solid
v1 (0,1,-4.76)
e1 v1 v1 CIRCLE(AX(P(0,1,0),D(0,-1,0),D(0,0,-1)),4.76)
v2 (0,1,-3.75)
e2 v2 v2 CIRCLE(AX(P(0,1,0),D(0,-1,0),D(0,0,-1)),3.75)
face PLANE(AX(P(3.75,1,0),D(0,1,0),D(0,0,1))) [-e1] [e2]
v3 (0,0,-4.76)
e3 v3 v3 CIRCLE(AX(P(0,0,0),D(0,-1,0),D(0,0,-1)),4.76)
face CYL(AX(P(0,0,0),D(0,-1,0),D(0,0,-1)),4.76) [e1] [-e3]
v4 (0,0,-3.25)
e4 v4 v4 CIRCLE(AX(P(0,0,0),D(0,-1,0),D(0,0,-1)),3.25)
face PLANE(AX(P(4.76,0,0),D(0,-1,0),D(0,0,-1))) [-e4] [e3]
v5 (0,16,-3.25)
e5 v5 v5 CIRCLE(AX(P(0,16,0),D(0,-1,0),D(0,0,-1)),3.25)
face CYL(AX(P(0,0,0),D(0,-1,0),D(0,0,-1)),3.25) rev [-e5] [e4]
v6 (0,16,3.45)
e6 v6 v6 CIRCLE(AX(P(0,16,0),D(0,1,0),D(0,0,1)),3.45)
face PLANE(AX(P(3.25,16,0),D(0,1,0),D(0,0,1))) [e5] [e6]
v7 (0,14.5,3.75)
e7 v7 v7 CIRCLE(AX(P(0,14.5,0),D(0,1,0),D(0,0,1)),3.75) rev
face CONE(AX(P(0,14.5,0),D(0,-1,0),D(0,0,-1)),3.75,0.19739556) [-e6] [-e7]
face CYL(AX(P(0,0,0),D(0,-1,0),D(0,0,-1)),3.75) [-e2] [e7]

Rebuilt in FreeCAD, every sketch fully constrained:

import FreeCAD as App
import Part
import Sketcher
from FreeCAD import Vector
Q = App.Units.Quantity


def edges_at(feature, points):
    """Names of the edges that pass closest to the given points."""
    edges = feature.Shape.Edges
    near = lambda p: min(range(len(edges)), key=lambda i: edges[i].distToShape(Part.Vertex(*p))[0])
    return sorted({f"Edge{near(p) + 1}" for p in points})

doc = App.newDocument("Part")
body = doc.addObject("PartDesign::Body", "Body")

# Sketch on XY plane
sketch1 = body.newObject("Sketcher::SketchObject", "Sketch")
sketch1.AttachmentSupport = (doc.getObject("XY_Plane"), [""])
sketch1.MapMode = "FlatFace"
sketch1.addGeometry([
    Part.LineSegment(Vector(3.75, 16, 0), Vector(3.25, 16, 0)),  # 0
    Part.LineSegment(Vector(3.25, 16, 0), Vector(3.25, 0, 0)),  # 1
    Part.LineSegment(Vector(3.25, 0, 0), Vector(4.76, 0, 0)),  # 2
    Part.LineSegment(Vector(4.76, 0, 0), Vector(4.76, 1, 0)),  # 3
    Part.LineSegment(Vector(4.76, 1, 0), Vector(3.75, 1, 0)),  # 4
    Part.LineSegment(Vector(3.75, 1, 0), Vector(3.75, 16, 0)),  # 5
], False)
sketch1.addConstraint([
    Sketcher.Constraint("Coincident", 0, 2, 1, 1),
    Sketcher.Constraint("Coincident", 1, 2, 2, 1),
    Sketcher.Constraint("Coincident", 2, 2, 3, 1),
    Sketcher.Constraint("Coincident", 3, 2, 4, 1),
    Sketcher.Constraint("Coincident", 4, 2, 5, 1),
    Sketcher.Constraint("Coincident", 5, 2, 0, 1),
    Sketcher.Constraint("Horizontal", 0),
    Sketcher.Constraint("Vertical", 1),
    Sketcher.Constraint("Horizontal", 2),
    Sketcher.Constraint("Vertical", 3),
    Sketcher.Constraint("Horizontal", 4),
    Sketcher.Constraint("Vertical", 5),
    Sketcher.Constraint("PointOnObject", 1, 2, -1),
    Sketcher.Constraint("DistanceY", 1, 2, 1, 1, Q("16 mm")),
    Sketcher.Constraint("DistanceY", 3, 1, 3, 2, Q("1 mm")),
    Sketcher.Constraint("DistanceX", 0, 2, 0, 1, Q("0.5 mm")),
    Sketcher.Constraint("DistanceX", 2, 1, 2, 2, Q("1.51 mm")),
    Sketcher.Constraint("DistanceX", -1, 1, 0, 2, Q("3.25 mm")),
])
revolution = body.newObject("PartDesign::Revolution", "Revolution")
revolution.Profile = sketch1
revolution.ReferenceAxis = (sketch1, ["V_Axis"])
revolution.Angle = 360
doc.recompute()

chamfer = body.newObject("PartDesign::Chamfer", "Chamfer")
chamfer.Base = (revolution, edges_at(revolution, [(0, 16, 3.75)]))
chamfer.ChamferType = "Two distances"
chamfer.Size = 0.3
chamfer.Size2 = 1.5

doc.recompute()
